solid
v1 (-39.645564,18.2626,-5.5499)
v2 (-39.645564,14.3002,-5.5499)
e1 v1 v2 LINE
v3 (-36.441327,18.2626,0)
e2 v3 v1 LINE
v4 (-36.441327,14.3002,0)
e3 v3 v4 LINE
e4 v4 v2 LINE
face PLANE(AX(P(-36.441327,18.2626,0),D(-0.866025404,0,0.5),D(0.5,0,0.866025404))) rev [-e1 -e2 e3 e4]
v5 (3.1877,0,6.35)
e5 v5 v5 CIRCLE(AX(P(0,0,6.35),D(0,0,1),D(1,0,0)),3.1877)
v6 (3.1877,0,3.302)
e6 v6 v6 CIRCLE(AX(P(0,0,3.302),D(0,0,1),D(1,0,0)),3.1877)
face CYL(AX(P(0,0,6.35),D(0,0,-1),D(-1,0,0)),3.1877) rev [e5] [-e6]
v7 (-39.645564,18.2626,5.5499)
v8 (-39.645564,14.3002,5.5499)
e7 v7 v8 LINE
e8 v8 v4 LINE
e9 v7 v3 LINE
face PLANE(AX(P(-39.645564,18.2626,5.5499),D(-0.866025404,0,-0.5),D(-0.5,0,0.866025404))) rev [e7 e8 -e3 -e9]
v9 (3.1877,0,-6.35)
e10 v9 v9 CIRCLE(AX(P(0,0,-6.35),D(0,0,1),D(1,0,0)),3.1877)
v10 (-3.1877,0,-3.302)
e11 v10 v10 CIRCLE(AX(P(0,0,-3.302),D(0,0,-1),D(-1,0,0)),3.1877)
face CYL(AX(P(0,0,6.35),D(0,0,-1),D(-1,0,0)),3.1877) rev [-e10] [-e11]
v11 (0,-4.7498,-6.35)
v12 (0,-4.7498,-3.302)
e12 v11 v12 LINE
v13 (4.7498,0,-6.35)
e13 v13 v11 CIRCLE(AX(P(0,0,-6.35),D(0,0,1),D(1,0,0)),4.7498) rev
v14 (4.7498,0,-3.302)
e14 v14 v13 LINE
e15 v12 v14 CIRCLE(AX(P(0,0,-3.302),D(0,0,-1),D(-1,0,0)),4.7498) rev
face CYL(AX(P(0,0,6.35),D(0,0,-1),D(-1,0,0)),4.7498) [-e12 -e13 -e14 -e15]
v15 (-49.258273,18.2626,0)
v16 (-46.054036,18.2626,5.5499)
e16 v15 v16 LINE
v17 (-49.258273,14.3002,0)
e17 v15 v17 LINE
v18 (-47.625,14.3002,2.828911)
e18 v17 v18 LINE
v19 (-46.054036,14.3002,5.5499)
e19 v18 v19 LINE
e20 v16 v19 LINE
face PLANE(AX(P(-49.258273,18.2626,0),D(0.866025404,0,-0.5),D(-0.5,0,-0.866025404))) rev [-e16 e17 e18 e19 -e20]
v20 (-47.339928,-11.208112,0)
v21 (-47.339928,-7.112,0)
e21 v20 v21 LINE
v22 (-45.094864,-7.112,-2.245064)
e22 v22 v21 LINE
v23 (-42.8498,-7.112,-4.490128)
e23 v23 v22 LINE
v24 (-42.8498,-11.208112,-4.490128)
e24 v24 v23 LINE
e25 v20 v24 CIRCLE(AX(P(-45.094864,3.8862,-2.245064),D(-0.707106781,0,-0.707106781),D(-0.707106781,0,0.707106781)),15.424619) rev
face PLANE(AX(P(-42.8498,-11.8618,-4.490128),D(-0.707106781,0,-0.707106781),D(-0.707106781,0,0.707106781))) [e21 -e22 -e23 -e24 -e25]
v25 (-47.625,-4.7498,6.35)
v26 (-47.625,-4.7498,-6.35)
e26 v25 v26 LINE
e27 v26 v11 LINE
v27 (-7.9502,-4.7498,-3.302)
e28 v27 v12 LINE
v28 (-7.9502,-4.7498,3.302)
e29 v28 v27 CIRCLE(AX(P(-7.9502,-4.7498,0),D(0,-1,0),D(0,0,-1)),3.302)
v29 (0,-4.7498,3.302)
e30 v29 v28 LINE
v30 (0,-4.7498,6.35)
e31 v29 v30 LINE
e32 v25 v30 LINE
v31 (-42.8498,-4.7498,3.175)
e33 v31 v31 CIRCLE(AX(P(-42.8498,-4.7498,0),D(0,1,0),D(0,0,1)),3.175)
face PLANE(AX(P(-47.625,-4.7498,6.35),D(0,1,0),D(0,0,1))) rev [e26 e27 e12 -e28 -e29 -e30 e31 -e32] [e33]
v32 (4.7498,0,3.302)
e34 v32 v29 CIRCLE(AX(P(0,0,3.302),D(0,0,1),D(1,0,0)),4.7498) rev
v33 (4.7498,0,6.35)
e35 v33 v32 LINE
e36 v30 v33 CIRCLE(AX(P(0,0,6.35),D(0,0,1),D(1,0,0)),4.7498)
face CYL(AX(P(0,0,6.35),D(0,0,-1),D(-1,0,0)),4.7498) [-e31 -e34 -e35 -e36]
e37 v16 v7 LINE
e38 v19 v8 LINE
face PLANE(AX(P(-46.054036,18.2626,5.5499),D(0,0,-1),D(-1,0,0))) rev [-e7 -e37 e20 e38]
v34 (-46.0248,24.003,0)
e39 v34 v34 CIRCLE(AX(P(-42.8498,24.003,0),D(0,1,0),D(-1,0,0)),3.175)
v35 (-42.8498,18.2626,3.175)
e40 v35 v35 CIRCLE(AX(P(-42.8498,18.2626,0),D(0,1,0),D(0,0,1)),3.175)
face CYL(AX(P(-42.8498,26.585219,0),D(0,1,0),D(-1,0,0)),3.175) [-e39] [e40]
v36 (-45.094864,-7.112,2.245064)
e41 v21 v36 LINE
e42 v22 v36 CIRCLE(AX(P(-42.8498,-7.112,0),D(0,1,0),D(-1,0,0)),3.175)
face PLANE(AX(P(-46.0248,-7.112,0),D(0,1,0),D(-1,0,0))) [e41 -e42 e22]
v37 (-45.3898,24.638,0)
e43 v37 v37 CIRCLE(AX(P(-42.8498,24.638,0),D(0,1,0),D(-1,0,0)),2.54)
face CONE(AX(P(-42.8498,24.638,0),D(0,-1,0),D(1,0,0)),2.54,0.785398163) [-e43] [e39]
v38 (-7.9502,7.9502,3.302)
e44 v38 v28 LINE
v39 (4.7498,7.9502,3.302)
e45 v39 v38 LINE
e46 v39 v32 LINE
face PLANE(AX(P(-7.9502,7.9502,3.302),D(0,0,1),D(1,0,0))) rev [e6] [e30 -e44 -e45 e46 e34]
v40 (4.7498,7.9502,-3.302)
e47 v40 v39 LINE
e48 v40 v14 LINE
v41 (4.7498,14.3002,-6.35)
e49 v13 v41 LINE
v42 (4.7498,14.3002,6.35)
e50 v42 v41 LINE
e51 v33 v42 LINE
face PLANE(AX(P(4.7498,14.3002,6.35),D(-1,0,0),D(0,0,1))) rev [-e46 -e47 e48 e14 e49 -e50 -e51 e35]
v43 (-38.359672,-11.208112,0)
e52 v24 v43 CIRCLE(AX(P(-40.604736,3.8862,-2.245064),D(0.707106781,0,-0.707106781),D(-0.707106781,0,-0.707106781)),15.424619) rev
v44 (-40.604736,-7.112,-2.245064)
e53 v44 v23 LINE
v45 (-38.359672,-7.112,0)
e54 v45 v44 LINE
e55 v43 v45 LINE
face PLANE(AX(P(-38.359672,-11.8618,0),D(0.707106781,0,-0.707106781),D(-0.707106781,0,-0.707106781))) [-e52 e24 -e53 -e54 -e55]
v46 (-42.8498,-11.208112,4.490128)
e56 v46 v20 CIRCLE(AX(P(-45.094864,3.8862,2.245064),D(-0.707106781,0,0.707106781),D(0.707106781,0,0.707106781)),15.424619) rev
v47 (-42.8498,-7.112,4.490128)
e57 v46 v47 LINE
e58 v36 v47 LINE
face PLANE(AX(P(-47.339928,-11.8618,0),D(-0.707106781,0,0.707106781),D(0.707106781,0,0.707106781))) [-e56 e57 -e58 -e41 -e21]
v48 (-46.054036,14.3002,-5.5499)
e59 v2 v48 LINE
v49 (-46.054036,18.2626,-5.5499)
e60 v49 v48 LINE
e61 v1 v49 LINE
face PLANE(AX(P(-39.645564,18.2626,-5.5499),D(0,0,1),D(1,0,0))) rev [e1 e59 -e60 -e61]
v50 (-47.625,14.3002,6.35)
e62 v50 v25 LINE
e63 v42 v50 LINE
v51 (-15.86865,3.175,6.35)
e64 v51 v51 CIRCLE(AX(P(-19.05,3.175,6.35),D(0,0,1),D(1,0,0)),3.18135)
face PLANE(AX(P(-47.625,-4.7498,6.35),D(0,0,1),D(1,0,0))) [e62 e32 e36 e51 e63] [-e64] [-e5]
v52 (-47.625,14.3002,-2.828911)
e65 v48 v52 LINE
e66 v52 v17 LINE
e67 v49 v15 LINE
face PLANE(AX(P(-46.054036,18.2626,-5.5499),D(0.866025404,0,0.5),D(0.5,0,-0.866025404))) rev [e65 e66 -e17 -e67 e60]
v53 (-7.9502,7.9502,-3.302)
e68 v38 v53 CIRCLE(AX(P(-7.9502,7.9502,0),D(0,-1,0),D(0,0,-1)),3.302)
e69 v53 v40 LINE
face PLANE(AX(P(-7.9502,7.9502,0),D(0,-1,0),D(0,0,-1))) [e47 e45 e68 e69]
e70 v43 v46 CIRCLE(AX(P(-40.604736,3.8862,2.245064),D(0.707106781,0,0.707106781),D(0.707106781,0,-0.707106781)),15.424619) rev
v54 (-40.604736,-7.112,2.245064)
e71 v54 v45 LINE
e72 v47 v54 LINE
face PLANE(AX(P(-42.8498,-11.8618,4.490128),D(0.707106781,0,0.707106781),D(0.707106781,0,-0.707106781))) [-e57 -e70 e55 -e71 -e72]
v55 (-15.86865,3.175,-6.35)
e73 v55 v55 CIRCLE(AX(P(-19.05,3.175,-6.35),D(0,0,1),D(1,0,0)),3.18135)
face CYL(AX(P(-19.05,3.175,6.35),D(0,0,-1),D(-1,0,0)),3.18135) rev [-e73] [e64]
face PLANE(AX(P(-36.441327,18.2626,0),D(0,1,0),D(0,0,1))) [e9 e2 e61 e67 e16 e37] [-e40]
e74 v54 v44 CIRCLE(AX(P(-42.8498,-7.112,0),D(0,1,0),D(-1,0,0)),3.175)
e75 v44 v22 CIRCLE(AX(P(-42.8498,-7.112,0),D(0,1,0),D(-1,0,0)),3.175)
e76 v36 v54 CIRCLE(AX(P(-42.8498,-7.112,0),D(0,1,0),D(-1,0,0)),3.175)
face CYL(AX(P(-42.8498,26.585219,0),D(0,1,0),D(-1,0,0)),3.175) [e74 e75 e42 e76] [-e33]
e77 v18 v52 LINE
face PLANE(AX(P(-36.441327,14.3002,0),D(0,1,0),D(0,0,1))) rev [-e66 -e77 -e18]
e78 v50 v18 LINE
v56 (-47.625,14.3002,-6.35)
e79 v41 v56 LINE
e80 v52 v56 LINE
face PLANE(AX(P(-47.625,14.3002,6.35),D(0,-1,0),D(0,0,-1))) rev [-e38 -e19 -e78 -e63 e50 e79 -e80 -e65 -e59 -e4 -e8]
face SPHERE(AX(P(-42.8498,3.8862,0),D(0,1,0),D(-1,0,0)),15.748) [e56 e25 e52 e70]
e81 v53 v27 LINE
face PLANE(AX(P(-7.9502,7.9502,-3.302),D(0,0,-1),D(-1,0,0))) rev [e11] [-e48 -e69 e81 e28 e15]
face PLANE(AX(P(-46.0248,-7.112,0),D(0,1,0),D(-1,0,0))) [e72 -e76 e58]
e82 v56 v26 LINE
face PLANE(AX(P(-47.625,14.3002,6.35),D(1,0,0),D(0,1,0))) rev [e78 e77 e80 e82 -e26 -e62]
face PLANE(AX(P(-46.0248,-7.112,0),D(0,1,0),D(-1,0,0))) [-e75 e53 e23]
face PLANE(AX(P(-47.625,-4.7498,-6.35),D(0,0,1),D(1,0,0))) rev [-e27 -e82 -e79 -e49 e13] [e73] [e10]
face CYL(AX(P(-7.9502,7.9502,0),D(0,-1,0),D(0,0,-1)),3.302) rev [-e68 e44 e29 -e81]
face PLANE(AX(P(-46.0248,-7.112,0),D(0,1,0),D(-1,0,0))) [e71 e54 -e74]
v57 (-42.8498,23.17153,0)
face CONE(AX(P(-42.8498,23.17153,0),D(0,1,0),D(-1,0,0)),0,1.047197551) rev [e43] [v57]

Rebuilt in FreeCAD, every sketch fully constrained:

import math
import FreeCAD as App
import Part
import Sketcher

V = App.Vector
Q = App.Units.Quantity


def edges_at(feature, points):
    """Names of the edges that pass closest to the given points."""
    edges = feature.Shape.Edges
    near = lambda p: min(range(len(edges)), key=lambda i: edges[i].distToShape(Part.Vertex(*p))[0])
    return sorted({f"Edge{near(p) + 1}" for p in points})

doc = App.newDocument("Part")
body = doc.addObject("PartDesign::Body", "Body")

sketch1 = doc.addObject("Sketcher::SketchObject", "Sketch")
body.addObject(sketch1)
sketch1.AttachmentSupport = (doc.XY_Plane, [""])
sketch1.MapMode = "FlatFace"
sketch1.addGeometry([
    Part.LineSegment(V(-47.6, 14.3, 0), V(-47.6, -4.7, 0)),
    Part.LineSegment(V(-47.6, -4.7, 0), V(4.7, -4.7, 0)),
    Part.LineSegment(V(4.7, -4.7, 0), V(4.7, 14.3, 0)),
    Part.LineSegment(V(4.7, 14.3, 0), V(-47.6, 14.3, 0)),
    Part.Circle(V(0, 0, 0), V(0, 0, 1), 3.2),
    Part.Circle(V(-19.1, 3.2, 0), V(0, 0, 1), 3.2),
], False)
sketch1.addConstraint([
    Sketcher.Constraint("Coincident", 0, 2, 1, 1),
    Sketcher.Constraint("Coincident", 1, 2, 2, 1),
    Sketcher.Constraint("Coincident", 2, 2, 3, 1),
    Sketcher.Constraint("Coincident", 3, 2, 0, 1),
    Sketcher.Constraint("Vertical", 0),
    Sketcher.Constraint("Horizontal", 1),
    Sketcher.Constraint("Vertical", 2),
    Sketcher.Constraint("Horizontal", 3),
    Sketcher.Constraint("Coincident", 4, 3, -1, 1),
    Sketcher.Constraint("Diameter", 4, Q("0.251 in")),
    Sketcher.Constraint("Diameter", 5, Q("0.2505 in")),
    Sketcher.Constraint("DistanceY", 0, 2, 0, 1, Q("0.75 in")),
    Sketcher.Constraint("DistanceX", 1, 1, 1, 2, Q("2.062 in")),
    Sketcher.Constraint("DistanceX", 5, 3, -1, 1, Q("0.75 in")),
    Sketcher.Constraint("DistanceY", -1, 1, 5, 3, Q("0.125 in")),
    Sketcher.Constraint("DistanceX", 0, 2, -1, 1, Q("1.875 in")),
    Sketcher.Constraint("DistanceY", 0, 2, -1, 1, Q("0.187 in")),
])
pad1 = doc.addObject("PartDesign::Pad", "Pad")
body.addObject(pad1)
pad1.Profile = sketch1
pad1.Length = Q("0.5 in")
pad1.Midplane = True

sketch2 = doc.addObject("Sketcher::SketchObject", "Sketch001")
body.addObject(sketch2)
sketch2.AttachmentSupport = (doc.XZ_Plane, [""])
sketch2.MapMode = "FlatFace"
sketch2.AttachmentOffset = App.Placement(V(0, 0, 0.187 * 25.4), App.Rotation())
sketch2.addGeometry([
    Part.LineSegment(V(4.7, 3.3, 0), V(-8, 3.3, 0)),
    Part.ArcOfCircle(Part.Circle(V(-8, 0, 0), V(0, 0, 1), 3.3), math.radians(90), math.radians(270)),
    Part.LineSegment(V(-8, -3.3, 0), V(4.7, -3.3, 0)),
    Part.LineSegment(V(4.7, -3.3, 0), V(4.7, 3.3, 0)),
], False)
sketch2.addConstraint([
    Sketcher.Constraint("Tangent", 0, 2, 1, 1),
    Sketcher.Constraint("Tangent", 1, 2, 2, 1),
    Sketcher.Constraint("Coincident", 2, 2, 3, 1),
    Sketcher.Constraint("Coincident", 3, 2, 0, 1),
    Sketcher.Constraint("Horizontal", 0),
    Sketcher.Constraint("Horizontal", 2),
    Sketcher.Constraint("Vertical", 3),
    Sketcher.Constraint("PointOnObject", 1, 3, -1),
    Sketcher.Constraint("Radius", 1, Q("0.13 in")),
    Sketcher.Constraint("DistanceX", 0, 2, 0, 1, Q("0.5 in")),
    Sketcher.Constraint("DistanceX", 1, 3, -1, 1, Q("0.313 in")),
])
pocket1 = doc.addObject("PartDesign::Pocket", "Pocket")
body.addObject(pocket1)
pocket1.Profile = sketch2
pocket1.Length = Q("0.5 in")
doc.recompute()

fillet = doc.addObject("PartDesign::Fillet", "Fillet")
body.addObject(fillet)
fillet.Base = (pocket1, edges_at(pocket1, [(4.75, -4.75, -4.826), (4.75, -4.75, 4.826)]))
fillet.Radius = Q("0.187 in")

sketch3 = doc.addObject("Sketcher::SketchObject", "Sketch002")
body.addObject(sketch3)
sketch3.AttachmentSupport = (doc.XZ_Plane, [""])
sketch3.MapMode = "FlatFace"
sketch3.AttachmentOffset = App.Placement(V(0, 0, -0.563 * 25.4), App.Rotation())
sketch3.addGeometry([
    Part.LineSegment(V(-36, 0, 0), V(-40, -6, 0)),
    Part.LineSegment(V(-40, -6, 0), V(-46, -6, 0)),
    Part.LineSegment(V(-46, -6, 0), V(-49, 0, 0)),
    Part.LineSegment(V(-49, 0, 0), V(-46, 6, 0)),
    Part.LineSegment(V(-46, 6, 0), V(-40, 6, 0)),
    Part.LineSegment(V(-40, 6, 0), V(-36, 0, 0)),
], False)
sketch3.addConstraint([
    Sketcher.Constraint("Coincident", 0, 2, 1, 1),
    Sketcher.Constraint("Coincident", 1, 2, 2, 1),
    Sketcher.Constraint("Coincident", 2, 2, 3, 1),
    Sketcher.Constraint("Coincident", 3, 2, 4, 1),
    Sketcher.Constraint("Coincident", 4, 2, 5, 1),
    Sketcher.Constraint("Coincident", 5, 2, 0, 1),
    Sketcher.Constraint("Horizontal", 1),
    Sketcher.Constraint("Horizontal", 4),
    Sketcher.Constraint("Symmetric", 1, 2, 3, 2, -1),
    Sketcher.Constraint("PointOnObject", 2, 2, -1),
    Sketcher.Constraint("PointOnObject", 5, 2, -1),
    Sketcher.Constraint("Parallel", 0, 3),
    Sketcher.Constraint("Parallel", 2, 5),
    Sketcher.Constraint("Angle", 0, Q("-120 deg")),
    Sketcher.Constraint("DistanceY", 1, 2, 3, 2, Q("0.437 in")),
    Sketcher.Constraint("DistanceX", 1, 2, 1, 1, Q("6.408473 mm")),
    Sketcher.Constraint("DistanceX", 0, 2, -1, 1, Q("39.645564 mm")),
])
pad2 = doc.addObject("PartDesign::Pad", "Pad001")
body.addObject(pad2)
pad2.Profile = sketch3
pad2.Length = Q("0.156 in")
pad2.Reversed = True

sketch4 = doc.addObject("Sketcher::SketchObject", "Sketch003")
body.addObject(sketch4)
sketch4.AttachmentSupport = (doc.XY_Plane, [""])
sketch4.MapMode = "FlatFace"
sketch4.addGeometry([
    Part.LineSegment(V(-42.8, 23.2, 0), V(-45.4, 24.6, 0)),
    Part.LineSegment(V(-45.4, 24.6, 0), V(-46, 24, 0)),
    Part.LineSegment(V(-46, 24, 0), V(-46, -7.1, 0)),
    Part.LineSegment(V(-46, -7.1, 0), V(-53.3, -7.1, 0)),
    Part.LineSegment(V(-53.3, -7.1, 0), V(-53.3, -7.9, 0)),
    Part.ArcOfCircle(Part.Circle(V(-42.8, 3.9, 0), V(0, 0, 1), 15.7), math.radians(-132), math.radians(-90)),
    Part.LineSegment(V(-42.8, -11.9, 0), V(-42.8, 23.2, 0)),
], False)
sketch4.addGeometry(Part.LineSegment(V(-42.8, 24.6, 0), V(-42.8, -11.9, 0)), True)
sketch4.addConstraint([
    Sketcher.Constraint("Coincident", 0, 2, 1, 1),
    Sketcher.Constraint("Coincident", 1, 2, 2, 1),
    Sketcher.Constraint("Coincident", 2, 2, 3, 1),
    Sketcher.Constraint("Coincident", 3, 2, 4, 1),
    Sketcher.Constraint("Coincident", 4, 2, 5, 1),
    Sketcher.Constraint("Coincident", 5, 2, 6, 1),
    Sketcher.Constraint("Coincident", 6, 2, 0, 1),
    Sketcher.Constraint("Vertical", 2),
    Sketcher.Constraint("Horizontal", 3),
    Sketcher.Constraint("Vertical", 4),
    Sketcher.Constraint("Vertical", 6),
    Sketcher.Constraint("Vertical", 7),
    Sketcher.Constraint("Coincident", 7, 2, 5, 2),
    Sketcher.Constraint("Horizontal", 0, 2, 7, 1),
    Sketcher.Constraint("Radius", 5, Q("0.62 in")),
    Sketcher.Constraint("Angle", 0, Q("150 deg")),
    Sketcher.Constraint("Angle", 1, Q("-135 deg")),
    Sketcher.Constraint("DistanceY", 4, 2, 4, 1, Q("0.03 in")),
    Sketcher.Constraint("DistanceX", 0, 2, 5, 3, Q("0.1 in")),
    Sketcher.Constraint("DistanceX", 0, 2, 6, 2, Q("0.1 in")),
    Sketcher.Constraint("DistanceY", 2, 2, 2, 1, Q("1.225 in")),
    Sketcher.Constraint("DistanceY", 7, 2, 7, 1, Q("1.437 in")),
    Sketcher.Constraint("DistanceY", -1, 1, 0, 2, Q("0.97 in")),
    Sketcher.Constraint("DistanceY", 2, 2, -1, 1, Q("0.28 in")),
    Sketcher.Constraint("DistanceX", 5, 3, -1, 1, Q("1.687 in")),
])
revolution = doc.addObject("PartDesign::Revolution", "Revolution")
body.addObject(revolution)
revolution.Profile = sketch4
revolution.ReferenceAxis = (sketch4, ["Axis0"])
revolution.Angle = 360

sketch5 = doc.addObject("Sketcher::SketchObject", "Sketch004")
body.addObject(sketch5)
sketch5.AttachmentSupport = (doc.XZ_Plane, [""])
sketch5.MapMode = "FlatFace"
sketch5.AttachmentOffset = App.Placement(V(0, 0, 0.28 * 25.4), App.Rotation())
sketch5.addGeometry([
    Part.Circle(V(-43, 0, 0), V(0, 0, 1), 10),
    Part.LineSegment(V(-47, 0, 0), V(-43, -4, 0)),
    Part.LineSegment(V(-43, -4, 0), V(-38, 0, 0)),
    Part.LineSegment(V(-38, 0, 0), V(-43, 4, 0)),
    Part.LineSegment(V(-43, 4, 0), V(-47, 0, 0)),
], False)
sketch5.addConstraint([
    Sketcher.Constraint("Coincident", 1, 2, 2, 1),
    Sketcher.Constraint("Coincident", 2, 2, 3, 1),
    Sketcher.Constraint("Coincident", 3, 2, 4, 1),
    Sketcher.Constraint("Coincident", 4, 2, 1, 1),
    Sketcher.Constraint("Symmetric", 1, 2, 3, 2, -1),
    Sketcher.Constraint("PointOnObject", 0, 3, -1),
    Sketcher.Constraint("PointOnObject", 2, 2, -1),
    Sketcher.Constraint("PointOnObject", 4, 2, -1),
    Sketcher.Constraint("Perpendicular", 1, 2),
    Sketcher.Constraint("Perpendicular", 2, 3),
    Sketcher.Constraint("Vertical", 0, 3, 1, 2),
    Sketcher.Constraint("Distance", 1, Q("0.25 in")),
    Sketcher.Constraint("DistanceX", 0, 3, -1, 1, Q("1.687 in")),
    Sketcher.Constraint("Diameter", 0, Q("20.947286 mm")),
])
pocket2 = doc.addObject("PartDesign::Pocket", "Pocket001")
body.addObject(pocket2)
pocket2.Profile = sketch5
pocket2.Type = "ThroughAll"
pocket2.Reversed = True

doc.recompute()
